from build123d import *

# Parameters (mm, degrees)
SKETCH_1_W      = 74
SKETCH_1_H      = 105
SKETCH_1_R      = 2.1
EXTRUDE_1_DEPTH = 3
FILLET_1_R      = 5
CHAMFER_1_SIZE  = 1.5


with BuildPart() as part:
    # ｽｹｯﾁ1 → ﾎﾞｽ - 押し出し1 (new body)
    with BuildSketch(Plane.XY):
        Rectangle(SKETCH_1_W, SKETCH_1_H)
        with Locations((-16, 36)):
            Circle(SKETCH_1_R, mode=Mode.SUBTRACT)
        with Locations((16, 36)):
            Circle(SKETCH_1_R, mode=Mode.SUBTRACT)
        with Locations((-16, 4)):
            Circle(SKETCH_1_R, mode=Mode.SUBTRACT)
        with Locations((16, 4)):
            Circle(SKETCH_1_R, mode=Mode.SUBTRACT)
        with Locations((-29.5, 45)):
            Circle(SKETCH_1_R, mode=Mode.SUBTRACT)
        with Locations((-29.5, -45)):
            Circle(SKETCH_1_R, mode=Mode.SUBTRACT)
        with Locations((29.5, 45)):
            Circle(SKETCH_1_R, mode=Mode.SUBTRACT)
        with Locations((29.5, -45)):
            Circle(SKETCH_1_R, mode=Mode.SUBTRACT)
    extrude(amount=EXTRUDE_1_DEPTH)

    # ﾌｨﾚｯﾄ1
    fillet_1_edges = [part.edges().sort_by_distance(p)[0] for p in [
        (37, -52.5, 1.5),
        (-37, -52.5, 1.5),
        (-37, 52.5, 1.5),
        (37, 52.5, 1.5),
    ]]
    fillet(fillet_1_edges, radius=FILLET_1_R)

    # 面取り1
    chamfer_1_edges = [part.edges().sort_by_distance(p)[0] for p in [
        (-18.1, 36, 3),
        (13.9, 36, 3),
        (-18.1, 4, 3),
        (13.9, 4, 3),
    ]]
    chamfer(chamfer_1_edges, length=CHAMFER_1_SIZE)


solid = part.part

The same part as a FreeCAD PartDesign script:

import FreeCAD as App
import Part
import Sketcher

V = App.Vector


def edges_at(feature, points):
    """Names of the edges that pass closest to the given points."""
    edges = feature.Shape.Edges
    near = lambda p: min(range(len(edges)), key=lambda i: edges[i].distToShape(Part.Vertex(*p))[0])
    return sorted({f"Edge{near(p) + 1}" for p in points})


def add_polygon(sketch, points):
    """Adds a closed chain of lines whose ends are joined by coincident constraints."""
    first, n = sketch.GeometryCount, len(points)
    for a, b in zip(points, points[1:] + points[:1]):
        sketch.addGeometry(Part.LineSegment(App.Vector(*a, 0), App.Vector(*b, 0)), False)
    for i in range(n):
        sketch.addConstraint(Sketcher.Constraint("Coincident", first + i, 2, first + (i + 1) % n, 1))

doc = App.newDocument("Part")
body = doc.addObject("PartDesign::Body", "Body")

# Sketch on XY plane
sketch1 = doc.addObject("Sketcher::SketchObject", "Sketch")
body.addObject(sketch1)
sketch1.AttachmentSupport = (doc.XY_Plane, [""])
sketch1.MapMode = "FlatFace"
add_polygon(sketch1, [(-37, 52.5), (-37, -52.5), (37, -52.5), (37, 52.5)])  # lines 0-3
sketch1.addGeometry(Part.Circle(V(-29.5, -45, 0), V(0, 0, 1), 2.1), False)  # 4
sketch1.addGeometry(Part.Circle(V(29.5, -45, 0), V(0, 0, 1), 2.1), False)  # 5
sketch1.addGeometry(Part.Circle(V(-16, 4, 0), V(0, 0, 1), 2.1), False)  # 6
sketch1.addGeometry(Part.Circle(V(-29.5, 45, 0), V(0, 0, 1), 2.1), False)  # 7
sketch1.addGeometry(Part.Circle(V(-16, 36, 0), V(0, 0, 1), 2.1), False)  # 8
sketch1.addGeometry(Part.Circle(V(16, 4, 0), V(0, 0, 1), 2.1), False)  # 9
sketch1.addGeometry(Part.Circle(V(16, 36, 0), V(0, 0, 1), 2.1), False)  # 10
sketch1.addGeometry(Part.Circle(V(29.5, 45, 0), V(0, 0, 1), 2.1), False)  # 11
sketch1.addConstraint(Sketcher.Constraint("Vertical", 0))
sketch1.addConstraint(Sketcher.Constraint("Horizontal", 1))
sketch1.addConstraint(Sketcher.Constraint("Vertical", 2))
sketch1.addConstraint(Sketcher.Constraint("Horizontal", 3))
sketch1.addConstraint(Sketcher.Constraint("Equal", 4, 5))
sketch1.addConstraint(Sketcher.Constraint("Equal", 5, 6))
sketch1.addConstraint(Sketcher.Constraint("Equal", 6, 7))
sketch1.addConstraint(Sketcher.Constraint("Equal", 7, 8))
sketch1.addConstraint(Sketcher.Constraint("Equal", 8, 9))
sketch1.addConstraint(Sketcher.Constraint("Equal", 9, 10))
sketch1.addConstraint(Sketcher.Constraint("Equal", 10, 11))
sketch1.addConstraint(Sketcher.Constraint("Symmetric", 5, 3, 7, 3, -1, 1))
sketch1.addConstraint(Sketcher.Constraint("Symmetric", 4, 3, 11, 3, -1, 1))
sketch1.addConstraint(Sketcher.Constraint("Symmetric", 0, 2, 2, 2, -1, 1))
sketch1.addConstraint(Sketcher.Constraint("Symmetric", 4, 3, 5, 3, -2))
sketch1.addConstraint(Sketcher.Constraint("Symmetric", 6, 3, 9, 3, -2))
sketch1.addConstraint(Sketcher.Constraint("Symmetric", 8, 3, 10, 3, -2))
sketch1.addConstraint(Sketcher.Constraint("Vertical", 6, 3, 8, 3))
sketch1.addConstraint(Sketcher.Constraint("Diameter", 4, 4.2))
sketch1.addConstraint(Sketcher.Constraint("DistanceX", 1, 1, 1, 2, 74.0))
sketch1.addConstraint(Sketcher.Constraint("DistanceY", 0, 2, 0, 1, 105.0))
sketch1.addConstraint(Sketcher.Constraint("DistanceY", 4, 3, -1, 1, 45.0))
sketch1.addConstraint(Sketcher.Constraint("DistanceX", 6, 3, -1, 1, 16.0))
sketch1.addConstraint(Sketcher.Constraint("DistanceY", -1, 1, 6, 3, 4.0))
sketch1.addConstraint(Sketcher.Constraint("DistanceY", -1, 1, 8, 3, 36.0))
sketch1.addConstraint(Sketcher.Constraint("DistanceX", 4, 3, 5, 3, 59.0))
pad1 = doc.addObject("PartDesign::Pad", "Pad")
body.addObject(pad1)
pad1.Profile = sketch1
pad1.Length = 3
doc.recompute()

fillet = doc.addObject("PartDesign::Fillet", "Fillet")
body.addObject(fillet)
fillet.Base = (pad1, edges_at(pad1, [
    (37, -52.5, 1.5),
    (-37, -52.5, 1.5),
    (-37, 52.5, 1.5),
    (37, 52.5, 1.5),
]))
fillet.Radius = 5
doc.recompute()

chamfer = doc.addObject("PartDesign::Chamfer", "Chamfer")
body.addObject(chamfer)
chamfer.Base = (fillet, edges_at(fillet, [
    (-18.1, 36, 3),
    (13.9, 36, 3),
    (-18.1, 4, 3),
    (13.9, 4, 3),
]))
chamfer.Size = 1.5

doc.recompute()
